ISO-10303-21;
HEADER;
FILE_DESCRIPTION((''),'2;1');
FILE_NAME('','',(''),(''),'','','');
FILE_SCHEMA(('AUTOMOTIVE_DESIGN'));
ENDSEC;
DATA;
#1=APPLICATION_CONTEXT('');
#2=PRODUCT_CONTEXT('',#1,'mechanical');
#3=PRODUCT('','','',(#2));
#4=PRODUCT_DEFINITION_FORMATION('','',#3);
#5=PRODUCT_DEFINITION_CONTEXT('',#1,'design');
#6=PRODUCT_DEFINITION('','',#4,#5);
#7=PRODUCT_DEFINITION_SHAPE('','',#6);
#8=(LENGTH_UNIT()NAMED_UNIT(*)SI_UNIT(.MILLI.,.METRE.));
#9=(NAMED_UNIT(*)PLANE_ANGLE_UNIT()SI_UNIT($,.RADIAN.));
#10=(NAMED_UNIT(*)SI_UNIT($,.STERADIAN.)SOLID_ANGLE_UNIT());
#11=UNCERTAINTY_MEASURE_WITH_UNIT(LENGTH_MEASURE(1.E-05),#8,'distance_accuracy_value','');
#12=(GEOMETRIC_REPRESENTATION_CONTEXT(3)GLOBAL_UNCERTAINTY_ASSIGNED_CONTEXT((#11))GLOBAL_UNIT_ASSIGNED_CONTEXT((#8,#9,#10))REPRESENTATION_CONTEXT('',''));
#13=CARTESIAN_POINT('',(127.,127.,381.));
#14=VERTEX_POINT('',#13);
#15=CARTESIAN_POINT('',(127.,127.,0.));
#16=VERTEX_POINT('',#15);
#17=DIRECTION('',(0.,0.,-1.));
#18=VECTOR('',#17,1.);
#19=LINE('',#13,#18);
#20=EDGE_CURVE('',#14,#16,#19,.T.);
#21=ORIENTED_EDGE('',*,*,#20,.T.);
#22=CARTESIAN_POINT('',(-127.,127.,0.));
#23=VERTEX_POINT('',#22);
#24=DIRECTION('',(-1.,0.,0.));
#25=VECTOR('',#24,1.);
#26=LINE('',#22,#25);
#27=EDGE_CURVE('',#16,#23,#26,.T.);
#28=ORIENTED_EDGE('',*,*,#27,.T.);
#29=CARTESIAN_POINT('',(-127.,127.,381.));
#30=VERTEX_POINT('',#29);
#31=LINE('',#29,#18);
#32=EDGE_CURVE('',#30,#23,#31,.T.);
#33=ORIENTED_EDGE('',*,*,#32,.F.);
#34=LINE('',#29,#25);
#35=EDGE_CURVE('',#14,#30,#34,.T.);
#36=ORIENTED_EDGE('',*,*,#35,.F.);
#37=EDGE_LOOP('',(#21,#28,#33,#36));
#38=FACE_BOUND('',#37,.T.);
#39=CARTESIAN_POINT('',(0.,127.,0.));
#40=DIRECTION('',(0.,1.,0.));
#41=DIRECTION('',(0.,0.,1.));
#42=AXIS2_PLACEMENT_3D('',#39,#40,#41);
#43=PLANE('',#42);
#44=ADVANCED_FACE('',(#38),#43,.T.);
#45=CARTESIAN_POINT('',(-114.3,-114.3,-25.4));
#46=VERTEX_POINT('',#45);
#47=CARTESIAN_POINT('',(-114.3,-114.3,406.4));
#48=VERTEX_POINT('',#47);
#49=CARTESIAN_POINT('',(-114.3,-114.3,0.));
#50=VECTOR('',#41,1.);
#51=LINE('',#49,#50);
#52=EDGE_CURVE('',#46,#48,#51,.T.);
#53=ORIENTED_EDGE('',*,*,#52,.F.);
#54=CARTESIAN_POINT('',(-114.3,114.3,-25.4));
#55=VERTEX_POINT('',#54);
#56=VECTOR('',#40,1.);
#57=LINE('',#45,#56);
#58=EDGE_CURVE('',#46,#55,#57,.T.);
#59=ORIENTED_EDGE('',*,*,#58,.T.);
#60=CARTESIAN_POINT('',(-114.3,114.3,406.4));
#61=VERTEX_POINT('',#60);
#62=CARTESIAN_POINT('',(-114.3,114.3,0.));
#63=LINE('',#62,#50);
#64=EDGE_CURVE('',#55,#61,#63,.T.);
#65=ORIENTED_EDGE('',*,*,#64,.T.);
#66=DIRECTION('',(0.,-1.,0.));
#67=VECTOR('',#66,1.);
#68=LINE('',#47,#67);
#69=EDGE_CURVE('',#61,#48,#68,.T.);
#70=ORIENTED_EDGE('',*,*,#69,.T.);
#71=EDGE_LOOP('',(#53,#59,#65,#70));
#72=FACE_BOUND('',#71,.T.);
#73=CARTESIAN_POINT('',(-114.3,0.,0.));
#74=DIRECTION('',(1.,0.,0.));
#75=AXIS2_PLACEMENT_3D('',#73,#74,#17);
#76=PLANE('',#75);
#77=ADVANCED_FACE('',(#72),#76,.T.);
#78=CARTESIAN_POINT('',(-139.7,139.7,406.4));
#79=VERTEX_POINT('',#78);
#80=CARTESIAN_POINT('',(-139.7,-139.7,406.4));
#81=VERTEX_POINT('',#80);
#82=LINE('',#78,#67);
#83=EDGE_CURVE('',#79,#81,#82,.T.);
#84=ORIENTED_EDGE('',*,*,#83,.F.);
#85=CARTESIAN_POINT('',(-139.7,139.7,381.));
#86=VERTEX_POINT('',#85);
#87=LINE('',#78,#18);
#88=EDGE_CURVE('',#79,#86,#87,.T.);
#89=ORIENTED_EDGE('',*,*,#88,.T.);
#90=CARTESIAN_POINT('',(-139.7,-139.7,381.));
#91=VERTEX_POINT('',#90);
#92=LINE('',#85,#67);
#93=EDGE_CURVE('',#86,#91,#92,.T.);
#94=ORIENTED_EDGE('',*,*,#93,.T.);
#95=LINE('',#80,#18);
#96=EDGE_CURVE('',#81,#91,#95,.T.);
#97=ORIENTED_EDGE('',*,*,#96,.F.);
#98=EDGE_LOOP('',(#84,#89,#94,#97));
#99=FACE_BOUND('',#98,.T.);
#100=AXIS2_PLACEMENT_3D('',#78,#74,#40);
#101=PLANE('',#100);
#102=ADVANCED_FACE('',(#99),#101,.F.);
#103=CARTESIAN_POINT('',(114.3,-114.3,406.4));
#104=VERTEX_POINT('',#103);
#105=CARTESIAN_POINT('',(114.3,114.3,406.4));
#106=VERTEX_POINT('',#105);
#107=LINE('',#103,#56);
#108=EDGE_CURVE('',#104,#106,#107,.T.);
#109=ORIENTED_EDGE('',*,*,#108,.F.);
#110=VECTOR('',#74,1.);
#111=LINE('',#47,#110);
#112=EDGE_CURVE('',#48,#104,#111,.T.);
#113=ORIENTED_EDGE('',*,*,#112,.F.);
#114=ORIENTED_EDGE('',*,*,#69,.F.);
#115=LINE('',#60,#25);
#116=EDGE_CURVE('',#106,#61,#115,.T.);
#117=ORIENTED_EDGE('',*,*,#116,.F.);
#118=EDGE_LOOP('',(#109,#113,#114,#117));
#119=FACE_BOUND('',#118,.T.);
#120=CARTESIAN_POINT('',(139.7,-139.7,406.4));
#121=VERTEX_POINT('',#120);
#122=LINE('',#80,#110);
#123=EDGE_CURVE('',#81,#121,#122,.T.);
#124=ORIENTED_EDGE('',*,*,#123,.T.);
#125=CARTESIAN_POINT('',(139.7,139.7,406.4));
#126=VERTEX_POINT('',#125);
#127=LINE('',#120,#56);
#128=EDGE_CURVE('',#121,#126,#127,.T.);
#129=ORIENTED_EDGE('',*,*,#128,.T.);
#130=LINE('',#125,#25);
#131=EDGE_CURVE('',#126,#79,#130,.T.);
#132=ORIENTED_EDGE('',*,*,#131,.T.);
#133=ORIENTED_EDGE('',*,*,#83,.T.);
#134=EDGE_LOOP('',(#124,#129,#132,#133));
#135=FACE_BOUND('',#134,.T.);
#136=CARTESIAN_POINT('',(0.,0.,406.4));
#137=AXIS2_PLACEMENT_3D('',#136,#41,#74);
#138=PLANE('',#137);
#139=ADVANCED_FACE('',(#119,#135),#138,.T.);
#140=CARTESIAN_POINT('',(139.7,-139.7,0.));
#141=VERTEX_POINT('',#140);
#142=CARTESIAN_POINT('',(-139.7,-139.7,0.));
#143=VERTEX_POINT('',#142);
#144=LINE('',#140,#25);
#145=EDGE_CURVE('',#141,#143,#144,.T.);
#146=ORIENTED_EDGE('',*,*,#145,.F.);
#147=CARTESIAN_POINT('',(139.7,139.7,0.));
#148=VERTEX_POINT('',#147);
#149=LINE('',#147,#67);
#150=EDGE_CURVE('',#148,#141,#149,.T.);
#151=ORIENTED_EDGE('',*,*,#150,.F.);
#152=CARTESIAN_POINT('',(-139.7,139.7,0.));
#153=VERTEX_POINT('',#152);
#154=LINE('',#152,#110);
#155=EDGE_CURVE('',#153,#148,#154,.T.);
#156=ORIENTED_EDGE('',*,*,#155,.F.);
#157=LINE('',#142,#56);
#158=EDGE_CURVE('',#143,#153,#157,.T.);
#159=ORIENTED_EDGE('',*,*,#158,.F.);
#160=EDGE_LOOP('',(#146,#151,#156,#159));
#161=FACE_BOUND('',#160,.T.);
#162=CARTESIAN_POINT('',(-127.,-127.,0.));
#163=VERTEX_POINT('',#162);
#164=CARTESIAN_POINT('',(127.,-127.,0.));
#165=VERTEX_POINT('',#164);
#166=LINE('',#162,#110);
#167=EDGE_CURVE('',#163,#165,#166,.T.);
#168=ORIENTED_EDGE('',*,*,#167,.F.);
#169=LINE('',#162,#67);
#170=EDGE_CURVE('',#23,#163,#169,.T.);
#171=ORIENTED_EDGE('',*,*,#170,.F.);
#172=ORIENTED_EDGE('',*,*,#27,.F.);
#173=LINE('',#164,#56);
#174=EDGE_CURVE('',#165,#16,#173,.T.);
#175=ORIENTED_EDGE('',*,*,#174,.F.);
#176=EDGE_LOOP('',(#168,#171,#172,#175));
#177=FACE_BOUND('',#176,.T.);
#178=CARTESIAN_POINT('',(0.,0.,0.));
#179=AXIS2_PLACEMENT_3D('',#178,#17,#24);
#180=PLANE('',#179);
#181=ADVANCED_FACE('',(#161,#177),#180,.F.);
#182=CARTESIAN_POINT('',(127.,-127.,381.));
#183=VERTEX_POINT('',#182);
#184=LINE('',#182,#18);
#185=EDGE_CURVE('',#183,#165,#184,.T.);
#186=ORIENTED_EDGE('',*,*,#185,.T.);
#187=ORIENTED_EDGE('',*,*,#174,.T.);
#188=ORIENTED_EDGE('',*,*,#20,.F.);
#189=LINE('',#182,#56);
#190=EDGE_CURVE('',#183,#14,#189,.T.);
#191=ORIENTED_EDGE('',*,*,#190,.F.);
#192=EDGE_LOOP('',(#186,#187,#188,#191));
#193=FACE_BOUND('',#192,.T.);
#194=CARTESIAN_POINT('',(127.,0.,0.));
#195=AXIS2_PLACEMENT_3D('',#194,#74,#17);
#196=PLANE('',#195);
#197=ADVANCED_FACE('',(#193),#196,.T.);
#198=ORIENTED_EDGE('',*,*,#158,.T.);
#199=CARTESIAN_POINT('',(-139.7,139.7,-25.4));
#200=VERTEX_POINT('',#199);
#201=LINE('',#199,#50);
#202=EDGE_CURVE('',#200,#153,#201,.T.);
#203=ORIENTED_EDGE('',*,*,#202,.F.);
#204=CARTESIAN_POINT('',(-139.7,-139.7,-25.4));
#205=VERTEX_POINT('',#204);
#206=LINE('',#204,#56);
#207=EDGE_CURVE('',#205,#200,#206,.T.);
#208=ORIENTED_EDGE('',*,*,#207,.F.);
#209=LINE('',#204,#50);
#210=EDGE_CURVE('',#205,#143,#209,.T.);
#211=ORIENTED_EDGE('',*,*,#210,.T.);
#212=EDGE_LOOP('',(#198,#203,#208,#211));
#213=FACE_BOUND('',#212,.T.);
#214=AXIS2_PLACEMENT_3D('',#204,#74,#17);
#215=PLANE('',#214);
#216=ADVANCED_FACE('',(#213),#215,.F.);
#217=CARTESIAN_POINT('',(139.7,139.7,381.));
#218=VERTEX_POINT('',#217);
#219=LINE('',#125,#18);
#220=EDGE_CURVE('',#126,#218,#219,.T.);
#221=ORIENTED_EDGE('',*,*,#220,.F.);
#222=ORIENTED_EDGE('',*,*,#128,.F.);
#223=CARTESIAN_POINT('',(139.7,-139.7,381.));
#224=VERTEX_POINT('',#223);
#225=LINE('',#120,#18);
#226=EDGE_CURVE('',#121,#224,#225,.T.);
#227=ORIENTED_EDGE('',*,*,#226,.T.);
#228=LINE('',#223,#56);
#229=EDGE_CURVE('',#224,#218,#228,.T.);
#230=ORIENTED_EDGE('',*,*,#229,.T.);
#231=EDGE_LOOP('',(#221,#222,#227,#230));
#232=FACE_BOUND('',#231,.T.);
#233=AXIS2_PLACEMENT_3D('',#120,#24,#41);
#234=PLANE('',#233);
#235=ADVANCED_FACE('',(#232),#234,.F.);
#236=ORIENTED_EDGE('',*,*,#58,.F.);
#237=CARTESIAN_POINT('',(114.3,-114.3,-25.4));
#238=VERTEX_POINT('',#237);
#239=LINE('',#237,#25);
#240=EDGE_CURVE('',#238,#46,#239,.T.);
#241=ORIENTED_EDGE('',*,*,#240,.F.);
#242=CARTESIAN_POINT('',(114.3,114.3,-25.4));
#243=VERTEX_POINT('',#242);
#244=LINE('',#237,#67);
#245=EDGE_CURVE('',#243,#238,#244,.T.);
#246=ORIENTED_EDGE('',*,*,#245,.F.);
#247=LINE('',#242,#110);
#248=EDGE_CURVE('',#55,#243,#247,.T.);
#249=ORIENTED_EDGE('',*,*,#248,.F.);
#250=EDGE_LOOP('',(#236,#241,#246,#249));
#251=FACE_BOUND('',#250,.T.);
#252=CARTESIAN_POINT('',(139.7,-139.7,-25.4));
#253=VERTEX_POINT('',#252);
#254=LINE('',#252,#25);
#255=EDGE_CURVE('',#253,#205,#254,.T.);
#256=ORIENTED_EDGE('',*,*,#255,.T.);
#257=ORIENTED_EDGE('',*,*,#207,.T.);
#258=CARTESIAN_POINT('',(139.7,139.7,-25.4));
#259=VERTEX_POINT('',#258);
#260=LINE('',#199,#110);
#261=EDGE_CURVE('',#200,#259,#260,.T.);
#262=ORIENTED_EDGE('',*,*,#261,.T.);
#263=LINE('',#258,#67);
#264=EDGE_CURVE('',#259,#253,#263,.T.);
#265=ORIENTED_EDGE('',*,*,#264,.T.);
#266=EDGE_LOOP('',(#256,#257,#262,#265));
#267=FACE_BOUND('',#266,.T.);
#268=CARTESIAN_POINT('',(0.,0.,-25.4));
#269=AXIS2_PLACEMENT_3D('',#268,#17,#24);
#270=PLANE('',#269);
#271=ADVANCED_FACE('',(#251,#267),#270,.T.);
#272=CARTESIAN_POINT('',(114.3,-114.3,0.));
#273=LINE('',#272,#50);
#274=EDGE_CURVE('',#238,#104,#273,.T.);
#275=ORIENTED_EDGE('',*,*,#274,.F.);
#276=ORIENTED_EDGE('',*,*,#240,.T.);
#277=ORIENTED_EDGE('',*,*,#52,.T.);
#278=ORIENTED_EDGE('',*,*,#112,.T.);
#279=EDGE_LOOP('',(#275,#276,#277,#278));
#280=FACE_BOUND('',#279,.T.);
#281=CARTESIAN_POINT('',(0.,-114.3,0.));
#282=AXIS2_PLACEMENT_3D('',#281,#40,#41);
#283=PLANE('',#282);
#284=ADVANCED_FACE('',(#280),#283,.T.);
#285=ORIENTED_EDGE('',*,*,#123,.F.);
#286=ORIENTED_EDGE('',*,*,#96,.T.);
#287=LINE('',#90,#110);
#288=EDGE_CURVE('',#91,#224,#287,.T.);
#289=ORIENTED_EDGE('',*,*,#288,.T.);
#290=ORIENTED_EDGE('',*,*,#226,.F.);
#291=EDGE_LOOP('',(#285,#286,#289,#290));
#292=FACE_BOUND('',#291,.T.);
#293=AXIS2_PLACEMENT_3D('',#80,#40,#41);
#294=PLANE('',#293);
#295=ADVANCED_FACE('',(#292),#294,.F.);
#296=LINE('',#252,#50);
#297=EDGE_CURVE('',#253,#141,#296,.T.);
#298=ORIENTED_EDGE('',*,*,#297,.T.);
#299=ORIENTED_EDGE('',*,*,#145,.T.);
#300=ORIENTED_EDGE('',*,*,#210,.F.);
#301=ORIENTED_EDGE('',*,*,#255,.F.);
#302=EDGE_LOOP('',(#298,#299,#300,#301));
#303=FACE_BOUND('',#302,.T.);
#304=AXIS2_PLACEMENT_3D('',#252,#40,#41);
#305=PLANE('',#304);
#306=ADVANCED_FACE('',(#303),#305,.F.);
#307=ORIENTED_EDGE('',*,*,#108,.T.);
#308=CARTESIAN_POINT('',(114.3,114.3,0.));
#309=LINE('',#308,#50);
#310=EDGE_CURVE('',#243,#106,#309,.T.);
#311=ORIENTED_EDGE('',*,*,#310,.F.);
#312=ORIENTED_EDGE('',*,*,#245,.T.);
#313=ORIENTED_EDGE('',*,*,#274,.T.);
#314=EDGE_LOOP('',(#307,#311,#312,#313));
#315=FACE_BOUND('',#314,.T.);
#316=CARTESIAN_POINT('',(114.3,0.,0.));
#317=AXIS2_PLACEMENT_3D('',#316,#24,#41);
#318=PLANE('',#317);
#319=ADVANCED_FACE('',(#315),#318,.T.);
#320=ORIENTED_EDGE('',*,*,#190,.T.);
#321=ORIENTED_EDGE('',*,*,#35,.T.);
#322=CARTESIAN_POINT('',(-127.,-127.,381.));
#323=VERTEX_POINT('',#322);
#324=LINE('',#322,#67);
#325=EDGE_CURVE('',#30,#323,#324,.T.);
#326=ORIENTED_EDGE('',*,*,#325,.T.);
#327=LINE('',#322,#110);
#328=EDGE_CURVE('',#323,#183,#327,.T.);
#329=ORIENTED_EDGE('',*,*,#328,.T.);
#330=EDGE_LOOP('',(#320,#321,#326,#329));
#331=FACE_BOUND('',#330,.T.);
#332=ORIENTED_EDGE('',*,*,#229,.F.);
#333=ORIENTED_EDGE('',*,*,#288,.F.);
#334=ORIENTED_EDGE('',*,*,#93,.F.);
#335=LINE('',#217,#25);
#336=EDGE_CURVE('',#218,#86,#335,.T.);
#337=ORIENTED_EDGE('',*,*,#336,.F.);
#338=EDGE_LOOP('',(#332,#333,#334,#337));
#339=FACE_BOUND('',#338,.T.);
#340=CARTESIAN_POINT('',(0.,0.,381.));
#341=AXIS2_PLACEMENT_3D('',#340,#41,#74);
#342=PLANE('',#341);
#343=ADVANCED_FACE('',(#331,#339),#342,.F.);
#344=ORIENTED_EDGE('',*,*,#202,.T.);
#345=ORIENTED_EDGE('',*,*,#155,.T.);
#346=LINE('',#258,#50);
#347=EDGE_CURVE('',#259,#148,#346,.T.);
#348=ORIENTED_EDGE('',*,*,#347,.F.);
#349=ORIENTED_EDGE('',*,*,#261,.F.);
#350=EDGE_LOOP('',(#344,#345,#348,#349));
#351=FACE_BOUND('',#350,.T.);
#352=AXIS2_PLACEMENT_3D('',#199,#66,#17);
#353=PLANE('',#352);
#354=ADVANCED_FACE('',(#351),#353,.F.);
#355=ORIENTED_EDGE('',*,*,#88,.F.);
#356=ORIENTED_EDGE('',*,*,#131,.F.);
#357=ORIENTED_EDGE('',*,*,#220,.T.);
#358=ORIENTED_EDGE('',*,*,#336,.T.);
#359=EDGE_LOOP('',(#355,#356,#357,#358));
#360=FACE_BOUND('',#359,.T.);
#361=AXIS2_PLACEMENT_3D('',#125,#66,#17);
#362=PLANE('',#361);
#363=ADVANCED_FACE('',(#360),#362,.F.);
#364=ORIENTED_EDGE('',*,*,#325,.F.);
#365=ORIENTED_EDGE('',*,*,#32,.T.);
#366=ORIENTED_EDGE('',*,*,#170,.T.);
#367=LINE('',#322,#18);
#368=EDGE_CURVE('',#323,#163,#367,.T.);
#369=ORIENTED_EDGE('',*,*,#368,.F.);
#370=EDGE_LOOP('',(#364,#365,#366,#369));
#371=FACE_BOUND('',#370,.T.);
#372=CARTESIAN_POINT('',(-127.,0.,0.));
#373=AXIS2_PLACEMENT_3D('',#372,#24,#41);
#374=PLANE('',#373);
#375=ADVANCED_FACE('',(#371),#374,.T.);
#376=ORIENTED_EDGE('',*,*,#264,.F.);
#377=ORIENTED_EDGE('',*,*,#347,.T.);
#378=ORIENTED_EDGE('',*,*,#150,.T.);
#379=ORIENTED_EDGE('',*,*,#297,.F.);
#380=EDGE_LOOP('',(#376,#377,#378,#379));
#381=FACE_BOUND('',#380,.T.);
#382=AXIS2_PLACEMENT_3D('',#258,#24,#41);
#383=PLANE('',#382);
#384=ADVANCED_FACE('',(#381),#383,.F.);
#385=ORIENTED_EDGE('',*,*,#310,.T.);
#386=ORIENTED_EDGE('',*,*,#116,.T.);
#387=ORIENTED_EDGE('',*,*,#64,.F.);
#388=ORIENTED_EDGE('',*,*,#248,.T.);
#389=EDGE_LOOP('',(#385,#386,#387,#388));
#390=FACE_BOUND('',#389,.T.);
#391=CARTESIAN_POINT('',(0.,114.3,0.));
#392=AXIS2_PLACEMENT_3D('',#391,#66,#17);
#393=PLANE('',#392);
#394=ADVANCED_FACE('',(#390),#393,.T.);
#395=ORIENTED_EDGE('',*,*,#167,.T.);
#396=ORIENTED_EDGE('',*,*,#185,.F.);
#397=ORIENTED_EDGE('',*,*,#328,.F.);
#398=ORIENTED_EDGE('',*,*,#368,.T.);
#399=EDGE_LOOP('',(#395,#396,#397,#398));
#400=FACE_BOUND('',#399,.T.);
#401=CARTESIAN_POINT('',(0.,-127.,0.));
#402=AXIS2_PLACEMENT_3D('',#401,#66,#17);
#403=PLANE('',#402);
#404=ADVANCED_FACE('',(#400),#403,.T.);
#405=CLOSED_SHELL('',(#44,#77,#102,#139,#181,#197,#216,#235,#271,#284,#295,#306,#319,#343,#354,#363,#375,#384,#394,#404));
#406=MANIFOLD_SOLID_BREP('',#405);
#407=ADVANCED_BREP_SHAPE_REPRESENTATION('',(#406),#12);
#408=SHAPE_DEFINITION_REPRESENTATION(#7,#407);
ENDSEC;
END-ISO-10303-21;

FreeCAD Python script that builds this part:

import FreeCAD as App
import Part
import Sketcher
from FreeCAD import Vector
Q = App.Units.Quantity


def add_polygon(sketch, points):
    """Adds a closed chain of lines whose ends are joined by coincident constraints."""
    first, n = sketch.GeometryCount, len(points)
    for a, b in zip(points, points[1:] + points[:1]):
        sketch.addGeometry(Part.LineSegment(App.Vector(*a, 0), App.Vector(*b, 0)), False)
    for i in range(n):
        sketch.addConstraint(Sketcher.Constraint("Coincident", first + i, 2, first + (i + 1) % n, 1))

doc = App.newDocument("Part")
body = doc.addObject("PartDesign::Body", "Body")

sketch1 = body.newObject("Sketcher::SketchObject", "Sketch")
sketch1.AttachmentSupport = (doc.getObject("XY_Plane"), [""])
sketch1.MapMode = "FlatFace"
sketch1.AttachmentOffset = App.Placement(Vector(0, 0, 15 * 25.4), App.Rotation())
add_polygon(sketch1, [(-127, -127), (127, -127), (127, 127), (-127, 127)])
sketch1.addConstraint(Sketcher.Constraint("Horizontal", 0))
sketch1.addConstraint(Sketcher.Constraint("Vertical", 1))
sketch1.addConstraint(Sketcher.Constraint("Horizontal", 2))
sketch1.addConstraint(Sketcher.Constraint("Vertical", 3))
sketch1.addConstraint(Sketcher.Constraint("Symmetric", 0, 2, 2, 2, -1, 1))
sketch1.addConstraint(Sketcher.Constraint("Equal", 2, 1))
sketch1.addConstraint(Sketcher.Constraint("DistanceX", 0, 1, 0, 2, Q("10 in")))

sketch2 = body.newObject("Sketcher::SketchObject", "Sketch001")
sketch2.AttachmentSupport = (doc.getObject("XY_Plane"), [""])
sketch2.MapMode = "FlatFace"
add_polygon(sketch2, [(-127, -127), (127, -127), (127, 127), (-127, 127)])
sketch2.addConstraint(Sketcher.Constraint("Horizontal", 0))
sketch2.addConstraint(Sketcher.Constraint("Vertical", 1))
sketch2.addConstraint(Sketcher.Constraint("Horizontal", 2))
sketch2.addConstraint(Sketcher.Constraint("Vertical", 3))
sketch2.addConstraint(Sketcher.Constraint("Symmetric", 0, 2, 2, 2, -1, 1))
sketch2.addConstraint(Sketcher.Constraint("Equal", 2, 1))
sketch2.addConstraint(Sketcher.Constraint("DistanceX", 0, 1, 0, 2, Q("10 in")))

additiveloft = body.newObject("PartDesign::AdditiveLoft", "AdditiveLoft")
additiveloft.Profile = sketch1
additiveloft.Sections = [sketch2]

sketch3 = body.newObject("Sketcher::SketchObject", "Sketch002")
sketch3.AttachmentSupport = (doc.getObject("XY_Plane"), [""])
sketch3.MapMode = "FlatFace"
add_polygon(sketch3, [(114.3, -114.3), (-114.3, -114.3), (-114.3, 114.3), (114.3, 114.3)])
sketch3.addConstraint(Sketcher.Constraint("Horizontal", 0))
sketch3.addConstraint(Sketcher.Constraint("Vertical", 1))
sketch3.addConstraint(Sketcher.Constraint("Horizontal", 2))
sketch3.addConstraint(Sketcher.Constraint("Vertical", 3))
sketch3.addConstraint(Sketcher.Constraint("Symmetric", 0, 2, 2, 2, -1, 1))
sketch3.addConstraint(Sketcher.Constraint("Equal", 2, 1))
sketch3.addConstraint(Sketcher.Constraint("DistanceX", 0, 2, 0, 1, Q("9 in")))

sketch4 = body.newObject("Sketcher::SketchObject", "Sketch003")
sketch4.AttachmentSupport = (doc.getObject("XY_Plane"), [""])
sketch4.MapMode = "FlatFace"
sketch4.AttachmentOffset = App.Placement(Vector(0, 0, 15 * 25.4), App.Rotation())
add_polygon(sketch4, [(114.3, -114.3), (114.3, 114.3), (-114.3, 114.3), (-114.3, -114.3)])
sketch4.addConstraint(Sketcher.Constraint("Vertical", 0))
sketch4.addConstraint(Sketcher.Constraint("Horizontal", 1))
sketch4.addConstraint(Sketcher.Constraint("Vertical", 2))
sketch4.addConstraint(Sketcher.Constraint("Horizontal", 3))
sketch4.addConstraint(Sketcher.Constraint("Symmetric", 0, 2, 2, 2, -1, 1))
sketch4.addConstraint(Sketcher.Constraint("Equal", 3, 0))
sketch4.addConstraint(Sketcher.Constraint("DistanceX", 1, 2, 1, 1, Q("9 in")))

subtractiveloft = body.newObject("PartDesign::SubtractiveLoft", "SubtractiveLoft")
subtractiveloft.Profile = sketch3
subtractiveloft.Sections = [sketch4]

sketch5 = body.newObject("Sketcher::SketchObject", "Sketch004")
sketch5.AttachmentSupport = (doc.getObject("XY_Plane"), [""])
sketch5.MapMode = "FlatFace"
add_polygon(sketch5, [(139.7, 139.7), (139.7, -139.7), (-139.7, -139.7), (-139.7, 139.7)])
add_polygon(sketch5, [(-114.3, -114.3), (114.3, -114.3), (114.3, 114.3), (-114.3, 114.3)])
sketch5.addConstraint(Sketcher.Constraint("Vertical", 0))
sketch5.addConstraint(Sketcher.Constraint("Horizontal", 1))
sketch5.addConstraint(Sketcher.Constraint("Vertical", 2))
sketch5.addConstraint(Sketcher.Constraint("Horizontal", 3))
sketch5.addConstraint(Sketcher.Constraint("Horizontal", 4))
sketch5.addConstraint(Sketcher.Constraint("Vertical", 5))
sketch5.addConstraint(Sketcher.Constraint("Horizontal", 6))
sketch5.addConstraint(Sketcher.Constraint("Vertical", 7))
sketch5.addConstraint(Sketcher.Constraint("Symmetric", 0, 2, 2, 2, -1, 1))
sketch5.addConstraint(Sketcher.Constraint("Symmetric", 4, 2, 6, 2, -1, 1))
sketch5.addConstraint(Sketcher.Constraint("Equal", 3, 0))
sketch5.addConstraint(Sketcher.Constraint("Equal", 6, 5))
sketch5.addConstraint(Sketcher.Constraint("DistanceX", 1, 2, 1, 1, Q("11 in")))
sketch5.addConstraint(Sketcher.Constraint("DistanceX", 4, 1, 4, 2, Q("9 in")))
pad1 = body.newObject("PartDesign::Pad", "Pad")
pad1.Profile = sketch5
pad1.Length = Q("1 in")
pad1.Reversed = True

sketch6 = body.newObject("Sketcher::SketchObject", "Sketch005")
sketch6.AttachmentSupport = (doc.getObject("XY_Plane"), [""])
sketch6.MapMode = "FlatFace"
sketch6.AttachmentOffset = App.Placement(Vector(0, 0, 15 * 25.4), App.Rotation())
add_polygon(sketch6, [(-139.7, 139.7), (-139.7, -139.7), (139.7, -139.7), (139.7, 139.7)])
add_polygon(sketch6, [(114.3, -114.3), (-114.3, -114.3), (-114.3, 114.3), (114.3, 114.3)])
sketch6.addConstraint(Sketcher.Constraint("Vertical", 0))
sketch6.addConstraint(Sketcher.Constraint("Horizontal", 1))
sketch6.addConstraint(Sketcher.Constraint("Vertical", 2))
sketch6.addConstraint(Sketcher.Constraint("Horizontal", 3))
sketch6.addConstraint(Sketcher.Constraint("Horizontal", 4))
sketch6.addConstraint(Sketcher.Constraint("Vertical", 5))
sketch6.addConstraint(Sketcher.Constraint("Horizontal", 6))
sketch6.addConstraint(Sketcher.Constraint("Vertical", 7))
sketch6.addConstraint(Sketcher.Constraint("Symmetric", 0, 2, 2, 2, -1, 1))
sketch6.addConstraint(Sketcher.Constraint("Symmetric", 4, 2, 6, 2, -1, 1))
sketch6.addConstraint(Sketcher.Constraint("Equal", 3, 0))
sketch6.addConstraint(Sketcher.Constraint("Equal", 6, 5))
sketch6.addConstraint(Sketcher.Constraint("DistanceX", 1, 1, 1, 2, Q("11 in")))
sketch6.addConstraint(Sketcher.Constraint("DistanceX", 4, 2, 4, 1, Q("9 in")))
pad2 = body.newObject("PartDesign::Pad", "Pad001")
pad2.Profile = sketch6
pad2.Length = Q("1 in")

doc.recompute()
